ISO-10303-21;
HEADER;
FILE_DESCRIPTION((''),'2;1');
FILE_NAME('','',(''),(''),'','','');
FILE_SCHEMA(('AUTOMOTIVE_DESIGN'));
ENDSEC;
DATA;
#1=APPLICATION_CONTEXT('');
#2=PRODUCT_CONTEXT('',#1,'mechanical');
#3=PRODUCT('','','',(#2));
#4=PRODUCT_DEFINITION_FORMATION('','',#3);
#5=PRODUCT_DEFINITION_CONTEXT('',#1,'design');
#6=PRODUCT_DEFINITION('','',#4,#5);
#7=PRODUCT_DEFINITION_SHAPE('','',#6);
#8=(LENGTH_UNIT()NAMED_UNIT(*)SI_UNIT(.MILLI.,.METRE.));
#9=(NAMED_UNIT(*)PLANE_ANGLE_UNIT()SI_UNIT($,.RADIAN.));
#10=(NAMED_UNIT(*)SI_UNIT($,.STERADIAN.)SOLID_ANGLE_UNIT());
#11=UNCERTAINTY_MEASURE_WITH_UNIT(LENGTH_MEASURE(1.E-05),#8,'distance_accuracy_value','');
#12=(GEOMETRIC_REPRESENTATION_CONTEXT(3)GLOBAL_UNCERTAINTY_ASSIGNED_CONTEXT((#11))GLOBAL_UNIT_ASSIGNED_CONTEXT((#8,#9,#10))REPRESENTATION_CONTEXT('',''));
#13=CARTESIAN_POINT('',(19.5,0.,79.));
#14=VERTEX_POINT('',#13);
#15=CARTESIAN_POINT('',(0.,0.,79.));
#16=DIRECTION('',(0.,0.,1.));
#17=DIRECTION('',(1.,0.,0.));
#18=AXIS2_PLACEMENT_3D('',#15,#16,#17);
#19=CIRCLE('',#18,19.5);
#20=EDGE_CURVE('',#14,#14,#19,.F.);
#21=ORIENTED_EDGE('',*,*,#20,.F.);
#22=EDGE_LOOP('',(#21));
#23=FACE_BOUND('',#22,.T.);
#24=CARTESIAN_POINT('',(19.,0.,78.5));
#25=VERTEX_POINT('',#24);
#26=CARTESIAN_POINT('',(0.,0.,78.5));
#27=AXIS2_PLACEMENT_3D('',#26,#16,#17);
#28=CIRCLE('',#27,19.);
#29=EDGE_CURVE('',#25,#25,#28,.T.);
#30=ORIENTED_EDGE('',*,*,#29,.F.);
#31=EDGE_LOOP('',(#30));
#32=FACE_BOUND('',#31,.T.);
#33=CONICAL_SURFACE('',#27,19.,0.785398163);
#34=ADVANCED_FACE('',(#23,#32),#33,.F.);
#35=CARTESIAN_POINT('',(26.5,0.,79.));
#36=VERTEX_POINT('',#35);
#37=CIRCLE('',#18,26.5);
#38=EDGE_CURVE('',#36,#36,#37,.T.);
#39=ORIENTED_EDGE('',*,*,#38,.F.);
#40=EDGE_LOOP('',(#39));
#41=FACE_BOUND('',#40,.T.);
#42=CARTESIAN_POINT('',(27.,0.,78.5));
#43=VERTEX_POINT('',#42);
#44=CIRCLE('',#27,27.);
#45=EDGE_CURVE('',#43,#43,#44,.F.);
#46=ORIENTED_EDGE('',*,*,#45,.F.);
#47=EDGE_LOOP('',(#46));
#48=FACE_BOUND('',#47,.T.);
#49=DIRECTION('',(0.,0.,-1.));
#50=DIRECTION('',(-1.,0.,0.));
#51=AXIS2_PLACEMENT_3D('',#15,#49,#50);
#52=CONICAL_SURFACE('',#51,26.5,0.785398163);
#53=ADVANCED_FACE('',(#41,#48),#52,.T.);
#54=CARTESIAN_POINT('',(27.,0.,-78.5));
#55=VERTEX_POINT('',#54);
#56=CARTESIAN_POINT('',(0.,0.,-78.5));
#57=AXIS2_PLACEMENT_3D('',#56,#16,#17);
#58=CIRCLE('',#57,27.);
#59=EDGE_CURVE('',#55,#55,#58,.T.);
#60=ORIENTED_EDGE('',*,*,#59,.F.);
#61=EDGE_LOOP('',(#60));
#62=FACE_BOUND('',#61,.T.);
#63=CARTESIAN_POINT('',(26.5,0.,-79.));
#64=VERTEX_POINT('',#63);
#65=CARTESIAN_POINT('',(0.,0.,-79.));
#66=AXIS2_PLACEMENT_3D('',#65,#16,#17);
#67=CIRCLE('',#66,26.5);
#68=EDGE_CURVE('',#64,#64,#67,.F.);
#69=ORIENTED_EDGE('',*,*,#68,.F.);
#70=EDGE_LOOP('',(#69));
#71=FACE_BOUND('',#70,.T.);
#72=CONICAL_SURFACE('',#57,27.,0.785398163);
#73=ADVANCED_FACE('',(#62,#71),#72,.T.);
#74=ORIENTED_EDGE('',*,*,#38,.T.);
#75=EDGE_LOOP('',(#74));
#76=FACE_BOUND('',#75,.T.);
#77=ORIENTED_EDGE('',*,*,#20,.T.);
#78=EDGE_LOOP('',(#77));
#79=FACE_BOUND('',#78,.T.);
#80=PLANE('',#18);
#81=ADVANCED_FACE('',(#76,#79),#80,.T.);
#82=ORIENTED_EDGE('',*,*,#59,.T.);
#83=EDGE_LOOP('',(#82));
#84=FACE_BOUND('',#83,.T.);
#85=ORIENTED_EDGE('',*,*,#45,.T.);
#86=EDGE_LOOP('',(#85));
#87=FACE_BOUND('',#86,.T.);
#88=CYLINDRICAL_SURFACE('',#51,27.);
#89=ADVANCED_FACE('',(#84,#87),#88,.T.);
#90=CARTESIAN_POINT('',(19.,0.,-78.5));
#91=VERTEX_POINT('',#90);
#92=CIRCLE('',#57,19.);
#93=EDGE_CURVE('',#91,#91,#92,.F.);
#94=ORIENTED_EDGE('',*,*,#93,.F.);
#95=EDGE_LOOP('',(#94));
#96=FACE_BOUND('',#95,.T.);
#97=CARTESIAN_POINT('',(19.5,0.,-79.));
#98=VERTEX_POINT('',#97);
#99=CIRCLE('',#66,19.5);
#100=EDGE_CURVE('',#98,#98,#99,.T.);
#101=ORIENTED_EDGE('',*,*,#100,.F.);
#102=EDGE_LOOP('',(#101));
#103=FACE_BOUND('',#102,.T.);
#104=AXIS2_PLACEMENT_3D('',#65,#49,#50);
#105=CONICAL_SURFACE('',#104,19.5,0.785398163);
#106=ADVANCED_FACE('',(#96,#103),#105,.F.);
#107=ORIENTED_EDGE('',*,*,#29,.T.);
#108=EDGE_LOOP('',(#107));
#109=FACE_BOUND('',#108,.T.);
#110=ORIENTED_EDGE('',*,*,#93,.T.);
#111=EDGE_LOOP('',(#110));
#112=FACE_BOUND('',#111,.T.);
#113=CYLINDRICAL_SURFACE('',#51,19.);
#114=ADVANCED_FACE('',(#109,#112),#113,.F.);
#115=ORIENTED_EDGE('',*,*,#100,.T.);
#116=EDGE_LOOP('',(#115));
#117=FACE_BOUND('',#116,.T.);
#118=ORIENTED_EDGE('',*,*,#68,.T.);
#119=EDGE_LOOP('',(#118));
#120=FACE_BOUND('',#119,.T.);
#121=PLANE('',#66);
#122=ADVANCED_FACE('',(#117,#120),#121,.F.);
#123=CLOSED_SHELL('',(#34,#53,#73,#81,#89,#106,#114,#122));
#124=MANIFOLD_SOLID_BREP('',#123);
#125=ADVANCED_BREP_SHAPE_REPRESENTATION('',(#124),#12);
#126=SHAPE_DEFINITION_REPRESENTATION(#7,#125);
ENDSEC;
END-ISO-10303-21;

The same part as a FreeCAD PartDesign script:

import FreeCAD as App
import Part
import Sketcher
from FreeCAD import Vector


def edges_at(feature, points):
    """Names of the edges that pass closest to the given points."""
    edges = feature.Shape.Edges
    near = lambda p: min(range(len(edges)), key=lambda i: edges[i].distToShape(Part.Vertex(*p))[0])
    return sorted({f"Edge{near(p) + 1}" for p in points})

doc = App.newDocument("Part")
body = doc.addObject("PartDesign::Body", "Body")

sketch1 = doc.addObject("Sketcher::SketchObject", "Sketch")
body.addObject(sketch1)
sketch1.AttachmentSupport = (doc.XY_Plane, [""])
sketch1.MapMode = "FlatFace"
sketch1.addGeometry(Part.Circle(Vector(0, 0, 0), Vector(0, 0, 1), 27), False)
sketch1.addGeometry(Part.Circle(Vector(0, 0, 0), Vector(0, 0, 1), 19), False)
sketch1.addConstraint(Sketcher.Constraint("Coincident", 0, 3, -1, 1))
sketch1.addConstraint(Sketcher.Constraint("Coincident", 1, 3, -1, 1))
sketch1.addConstraint(Sketcher.Constraint("Diameter", 0, 54.0))
sketch1.addConstraint(Sketcher.Constraint("Diameter", 1, 38.0))
pad1 = doc.addObject("PartDesign::Pad", "Pad")
body.addObject(pad1)
pad1.Profile = sketch1
pad1.Length = 158
pad1.Midplane = True
doc.recompute()

chamfer = doc.addObject("PartDesign::Chamfer", "Chamfer")
body.addObject(chamfer)
chamfer.Base = (pad1, edges_at(pad1, [
    (-27, 0, -79),
    (-27, 0, 79),
    (-19, 0, -79),
    (-19, 0, 79),
]))
chamfer.Size = 0.5

doc.recompute()
